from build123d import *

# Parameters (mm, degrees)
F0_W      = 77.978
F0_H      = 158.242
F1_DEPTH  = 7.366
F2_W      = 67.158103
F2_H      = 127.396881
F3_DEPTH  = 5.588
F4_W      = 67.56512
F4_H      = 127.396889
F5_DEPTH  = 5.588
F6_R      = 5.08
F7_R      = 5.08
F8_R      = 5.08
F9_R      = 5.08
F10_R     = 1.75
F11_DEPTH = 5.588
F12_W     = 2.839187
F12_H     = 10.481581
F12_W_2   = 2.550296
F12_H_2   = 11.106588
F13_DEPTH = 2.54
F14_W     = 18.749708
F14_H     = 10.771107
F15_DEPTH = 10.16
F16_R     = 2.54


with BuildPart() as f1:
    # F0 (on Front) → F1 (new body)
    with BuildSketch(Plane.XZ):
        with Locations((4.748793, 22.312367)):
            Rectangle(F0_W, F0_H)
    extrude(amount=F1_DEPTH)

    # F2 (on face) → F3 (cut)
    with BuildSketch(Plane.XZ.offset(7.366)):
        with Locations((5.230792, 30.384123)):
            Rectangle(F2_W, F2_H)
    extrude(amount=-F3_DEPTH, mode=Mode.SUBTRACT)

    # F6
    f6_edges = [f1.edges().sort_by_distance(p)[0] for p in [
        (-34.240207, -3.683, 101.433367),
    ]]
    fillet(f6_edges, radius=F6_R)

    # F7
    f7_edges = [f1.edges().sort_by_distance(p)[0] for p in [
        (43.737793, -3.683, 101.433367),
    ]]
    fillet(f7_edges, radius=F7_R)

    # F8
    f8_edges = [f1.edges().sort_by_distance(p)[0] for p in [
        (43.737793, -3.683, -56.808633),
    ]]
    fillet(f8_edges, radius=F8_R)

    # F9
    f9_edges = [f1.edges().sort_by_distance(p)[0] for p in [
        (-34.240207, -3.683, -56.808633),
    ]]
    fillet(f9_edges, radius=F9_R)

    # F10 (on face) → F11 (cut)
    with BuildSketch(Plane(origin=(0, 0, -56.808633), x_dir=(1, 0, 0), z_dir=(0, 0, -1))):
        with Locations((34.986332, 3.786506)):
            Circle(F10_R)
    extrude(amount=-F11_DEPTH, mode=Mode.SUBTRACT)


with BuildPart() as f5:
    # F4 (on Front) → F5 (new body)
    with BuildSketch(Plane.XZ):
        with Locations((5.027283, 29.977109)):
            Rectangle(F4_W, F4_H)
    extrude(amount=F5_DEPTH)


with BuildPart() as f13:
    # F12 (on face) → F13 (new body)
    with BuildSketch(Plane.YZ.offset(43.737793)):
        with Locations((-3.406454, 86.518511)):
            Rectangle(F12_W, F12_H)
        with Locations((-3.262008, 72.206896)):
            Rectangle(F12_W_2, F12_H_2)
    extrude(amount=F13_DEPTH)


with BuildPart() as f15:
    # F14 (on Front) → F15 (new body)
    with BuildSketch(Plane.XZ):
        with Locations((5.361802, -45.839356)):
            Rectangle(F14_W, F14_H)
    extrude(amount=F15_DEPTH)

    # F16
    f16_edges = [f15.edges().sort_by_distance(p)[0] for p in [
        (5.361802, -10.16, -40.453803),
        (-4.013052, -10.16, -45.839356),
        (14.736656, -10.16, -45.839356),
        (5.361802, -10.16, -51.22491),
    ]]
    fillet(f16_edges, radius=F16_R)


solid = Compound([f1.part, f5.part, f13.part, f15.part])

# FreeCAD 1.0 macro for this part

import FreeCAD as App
import Part
import Sketcher

V = App.Vector
Q = App.Units.Quantity


def edges_at(feature, points):
    """Names of the edges that pass closest to the given points."""
    edges = feature.Shape.Edges
    near = lambda p: min(range(len(edges)), key=lambda i: edges[i].distToShape(Part.Vertex(*p))[0])
    return sorted({f"Edge{near(p) + 1}" for p in points})


def add_polygon(sketch, points):
    """Adds a closed chain of lines whose ends are joined by coincident constraints."""
    first, n = sketch.GeometryCount, len(points)
    for a, b in zip(points, points[1:] + points[:1]):
        sketch.addGeometry(Part.LineSegment(App.Vector(*a, 0), App.Vector(*b, 0)), False)
    for i in range(n):
        sketch.addConstraint(Sketcher.Constraint("Coincident", first + i, 2, first + (i + 1) % n, 1))

doc = App.newDocument("Part")
body = doc.addObject("PartDesign::Body", "Body")

sketch1 = body.newObject("Sketcher::SketchObject", "Sketch")
sketch1.AttachmentSupport = (doc.getObject("XZ_Plane"), [""])
sketch1.MapMode = "FlatFace"
add_polygon(sketch1, [(-34, 101), (-34, -57), (44, -57), (44, 101)])
sketch1.addConstraint(Sketcher.Constraint("Vertical", 0))
sketch1.addConstraint(Sketcher.Constraint("Horizontal", 1))
sketch1.addConstraint(Sketcher.Constraint("Vertical", 2))
sketch1.addConstraint(Sketcher.Constraint("Horizontal", 3))
sketch1.addConstraint(Sketcher.Constraint("DistanceX", 1, 1, 1, 2, Q("3.07 in")))
sketch1.addConstraint(Sketcher.Constraint("DistanceY", 0, 2, 0, 1, Q("6.23 in")))
sketch1.addConstraint(Sketcher.Constraint("DistanceX", 0, 2, -1, 1, Q("34.240207 mm")))
sketch1.addConstraint(Sketcher.Constraint("DistanceY", 0, 2, -1, 1, Q("56.808633 mm")))
pad1 = body.newObject("PartDesign::Pad", "Pad")
pad1.Profile = sketch1
pad1.Length = Q("0.29 in")

sketch2 = body.newObject("Sketcher::SketchObject", "Sketch001")
sketch2.AttachmentSupport = (doc.getObject("XZ_Plane"), [""])
sketch2.MapMode = "FlatFace"
sketch2.AttachmentOffset = App.Placement(V(0, 0, 0.29 * 25.4), App.Rotation())
add_polygon(sketch2, [(-28, 94), (-28, -33), (39, -33), (39, 94)])
sketch2.addConstraint(Sketcher.Constraint("Vertical", 0))
sketch2.addConstraint(Sketcher.Constraint("Horizontal", 1))
sketch2.addConstraint(Sketcher.Constraint("Vertical", 2))
sketch2.addConstraint(Sketcher.Constraint("Horizontal", 3))
sketch2.addConstraint(Sketcher.Constraint("DistanceY", 0, 2, 0, 1, Q("127.396881 mm")))
sketch2.addConstraint(Sketcher.Constraint("DistanceX", 1, 1, 1, 2, Q("67.158103 mm")))
sketch2.addConstraint(Sketcher.Constraint("DistanceX", 0, 2, -1, 1, Q("28.34826 mm")))
sketch2.addConstraint(Sketcher.Constraint("DistanceY", 0, 2, -1, 1, Q("33.314318 mm")))
pocket1 = body.newObject("PartDesign::Pocket", "Pocket")
pocket1.Profile = sketch2
pocket1.Length = Q("0.22 in")
doc.recompute()

fillet = body.newObject("PartDesign::Fillet", "Fillet")
fillet.Base = (pocket1, edges_at(pocket1, [(-34.24, -3.683, 101.433)]))
fillet.Radius = Q("0.2 in")
doc.recompute()

fillet2 = body.newObject("PartDesign::Fillet", "Fillet001")
fillet2.Base = (fillet, edges_at(fillet, [(43.738, -3.683, 101.433)]))
fillet2.Radius = Q("0.2 in")
doc.recompute()

fillet3 = body.newObject("PartDesign::Fillet", "Fillet002")
fillet3.Base = (fillet2, edges_at(fillet2, [(43.738, -3.683, -56.809)]))
fillet3.Radius = Q("0.2 in")
doc.recompute()

fillet4 = body.newObject("PartDesign::Fillet", "Fillet003")
fillet4.Base = (fillet3, edges_at(fillet3, [(-34.24, -3.683, -56.809)]))
fillet4.Radius = Q("0.2 in")

sketch3 = body.newObject("Sketcher::SketchObject", "Sketch002")
sketch3.AttachmentSupport = (doc.getObject("XY_Plane"), [""])
sketch3.MapMode = "FlatFace"
sketch3.AttachmentOffset = App.Placement(V(0, 0, -56.808633), App.Rotation())
sketch3.addGeometry(Part.Circle(V(35, -3.8, 0), V(0, 0, 1), 1.8), False)
sketch3.addConstraint(Sketcher.Constraint("Diameter", 0, Q("3.5 mm")))
sketch3.addConstraint(Sketcher.Constraint("DistanceX", -1, 1, 0, 3, Q("34.986332 mm")))
sketch3.addConstraint(Sketcher.Constraint("DistanceY", 0, 3, -1, 1, Q("3.786506 mm")))
pocket2 = body.newObject("PartDesign::Pocket", "Pocket001")
pocket2.Profile = sketch3
pocket2.Length = Q("0.22 in")
pocket2.Reversed = True
body2 = doc.addObject("PartDesign::Body", "Body001")

sketch4 = body2.newObject("Sketcher::SketchObject", "Sketch003")
sketch4.AttachmentSupport = (doc.getObject("XZ_Plane001"), [""])
sketch4.MapMode = "FlatFace"
add_polygon(sketch4, [(-29, 94), (-29, -34), (39, -34), (39, 94)])
sketch4.addConstraint(Sketcher.Constraint("Vertical", 0))
sketch4.addConstraint(Sketcher.Constraint("Horizontal", 1))
sketch4.addConstraint(Sketcher.Constraint("Vertical", 2))
sketch4.addConstraint(Sketcher.Constraint("Horizontal", 3))
sketch4.addConstraint(Sketcher.Constraint("DistanceX", 1, 1, 1, 2, Q("67.56512 mm")))
sketch4.addConstraint(Sketcher.Constraint("DistanceY", 0, 2, 0, 1, Q("127.396889 mm")))
sketch4.addConstraint(Sketcher.Constraint("DistanceX", 0, 2, -1, 1, Q("28.755277 mm")))
sketch4.addConstraint(Sketcher.Constraint("DistanceY", 0, 2, -1, 1, Q("33.721336 mm")))
pad2 = body2.newObject("PartDesign::Pad", "Pad001")
pad2.Profile = sketch4
pad2.Length = Q("0.22 in")
body3 = doc.addObject("PartDesign::Body", "Body002")
body3.AllowCompound = True

sketch5 = body3.newObject("Sketcher::SketchObject", "Sketch004")
sketch5.AttachmentSupport = (doc.getObject("YZ_Plane002"), [""])
sketch5.MapMode = "FlatFace"
sketch5.AttachmentOffset = App.Placement(V(0, 0, 43.737793), App.Rotation())
add_polygon(sketch5, [(-4.8, 91.8), (-4.8, 81.3), (-2, 81.3), (-2, 91.8)])
add_polygon(sketch5, [(-4.5, 77.8), (-4.5, 66.7), (-2, 66.7), (-2, 77.8)])
sketch5.addConstraint(Sketcher.Constraint("Vertical", 0))
sketch5.addConstraint(Sketcher.Constraint("Horizontal", 1))
sketch5.addConstraint(Sketcher.Constraint("Vertical", 2))
sketch5.addConstraint(Sketcher.Constraint("Horizontal", 3))
sketch5.addConstraint(Sketcher.Constraint("Vertical", 4))
sketch5.addConstraint(Sketcher.Constraint("Horizontal", 5))
sketch5.addConstraint(Sketcher.Constraint("Vertical", 6))
sketch5.addConstraint(Sketcher.Constraint("Horizontal", 7))
sketch5.addConstraint(Sketcher.Constraint("Vertical", 2, 2, 5, 2))
sketch5.addConstraint(Sketcher.Constraint("DistanceY", 0, 2, 0, 1, Q("10.481581 mm")))
sketch5.addConstraint(Sketcher.Constraint("DistanceY", -1, 1, 2, 2, Q("91.759302 mm")))
sketch5.addConstraint(Sketcher.Constraint("DistanceY", 4, 2, 3, 2, Q("25.1057 mm")))
sketch5.addConstraint(Sketcher.Constraint("DistanceX", 1, 1, 1, 2, Q("2.839187 mm")))
sketch5.addConstraint(Sketcher.Constraint("DistanceX", 5, 1, 5, 2, Q("2.550296 mm")))
sketch5.addConstraint(Sketcher.Constraint("DistanceY", 4, 2, 4, 1, Q("11.106588 mm")))
sketch5.addConstraint(Sketcher.Constraint("DistanceX", 1, 2, -1, 1, Q("1.98686 mm")))
pad3 = body3.newObject("PartDesign::Pad", "Pad002")
pad3.Profile = sketch5
pad3.Length = Q("0.1 in")
body4 = doc.addObject("PartDesign::Body", "Body003")

sketch6 = body4.newObject("Sketcher::SketchObject", "Sketch005")
sketch6.AttachmentSupport = (doc.getObject("XZ_Plane003"), [""])
sketch6.MapMode = "FlatFace"
add_polygon(sketch6, [(-4, -40), (-4, -51), (15, -51), (15, -40)])
sketch6.addConstraint(Sketcher.Constraint("Vertical", 0))
sketch6.addConstraint(Sketcher.Constraint("Horizontal", 1))
sketch6.addConstraint(Sketcher.Constraint("Vertical", 2))
sketch6.addConstraint(Sketcher.Constraint("Horizontal", 3))
sketch6.addConstraint(Sketcher.Constraint("DistanceX", 1, 1, 1, 2, Q("18.749708 mm")))
sketch6.addConstraint(Sketcher.Constraint("DistanceY", 0, 2, 0, 1, Q("10.771107 mm")))
sketch6.addConstraint(Sketcher.Constraint("DistanceY", 0, 2, -1, 1, Q("51.22491 mm")))
sketch6.addConstraint(Sketcher.Constraint("DistanceX", 0, 2, -1, 1, Q("4.013052 mm")))
pad4 = body4.newObject("PartDesign::Pad", "Pad003")
pad4.Profile = sketch6
pad4.Length = Q("0.4 in")
doc.recompute()

fillet5 = body4.newObject("PartDesign::Fillet", "Fillet004")
fillet5.Base = (pad4, edges_at(pad4, [
    (5.362, -10.16, -40.454),
    (-4.013, -10.16, -45.839),
    (14.737, -10.16, -45.839),
    (5.362, -10.16, -51.225),
]))
fillet5.Radius = Q("0.1 in")

doc.recompute()
